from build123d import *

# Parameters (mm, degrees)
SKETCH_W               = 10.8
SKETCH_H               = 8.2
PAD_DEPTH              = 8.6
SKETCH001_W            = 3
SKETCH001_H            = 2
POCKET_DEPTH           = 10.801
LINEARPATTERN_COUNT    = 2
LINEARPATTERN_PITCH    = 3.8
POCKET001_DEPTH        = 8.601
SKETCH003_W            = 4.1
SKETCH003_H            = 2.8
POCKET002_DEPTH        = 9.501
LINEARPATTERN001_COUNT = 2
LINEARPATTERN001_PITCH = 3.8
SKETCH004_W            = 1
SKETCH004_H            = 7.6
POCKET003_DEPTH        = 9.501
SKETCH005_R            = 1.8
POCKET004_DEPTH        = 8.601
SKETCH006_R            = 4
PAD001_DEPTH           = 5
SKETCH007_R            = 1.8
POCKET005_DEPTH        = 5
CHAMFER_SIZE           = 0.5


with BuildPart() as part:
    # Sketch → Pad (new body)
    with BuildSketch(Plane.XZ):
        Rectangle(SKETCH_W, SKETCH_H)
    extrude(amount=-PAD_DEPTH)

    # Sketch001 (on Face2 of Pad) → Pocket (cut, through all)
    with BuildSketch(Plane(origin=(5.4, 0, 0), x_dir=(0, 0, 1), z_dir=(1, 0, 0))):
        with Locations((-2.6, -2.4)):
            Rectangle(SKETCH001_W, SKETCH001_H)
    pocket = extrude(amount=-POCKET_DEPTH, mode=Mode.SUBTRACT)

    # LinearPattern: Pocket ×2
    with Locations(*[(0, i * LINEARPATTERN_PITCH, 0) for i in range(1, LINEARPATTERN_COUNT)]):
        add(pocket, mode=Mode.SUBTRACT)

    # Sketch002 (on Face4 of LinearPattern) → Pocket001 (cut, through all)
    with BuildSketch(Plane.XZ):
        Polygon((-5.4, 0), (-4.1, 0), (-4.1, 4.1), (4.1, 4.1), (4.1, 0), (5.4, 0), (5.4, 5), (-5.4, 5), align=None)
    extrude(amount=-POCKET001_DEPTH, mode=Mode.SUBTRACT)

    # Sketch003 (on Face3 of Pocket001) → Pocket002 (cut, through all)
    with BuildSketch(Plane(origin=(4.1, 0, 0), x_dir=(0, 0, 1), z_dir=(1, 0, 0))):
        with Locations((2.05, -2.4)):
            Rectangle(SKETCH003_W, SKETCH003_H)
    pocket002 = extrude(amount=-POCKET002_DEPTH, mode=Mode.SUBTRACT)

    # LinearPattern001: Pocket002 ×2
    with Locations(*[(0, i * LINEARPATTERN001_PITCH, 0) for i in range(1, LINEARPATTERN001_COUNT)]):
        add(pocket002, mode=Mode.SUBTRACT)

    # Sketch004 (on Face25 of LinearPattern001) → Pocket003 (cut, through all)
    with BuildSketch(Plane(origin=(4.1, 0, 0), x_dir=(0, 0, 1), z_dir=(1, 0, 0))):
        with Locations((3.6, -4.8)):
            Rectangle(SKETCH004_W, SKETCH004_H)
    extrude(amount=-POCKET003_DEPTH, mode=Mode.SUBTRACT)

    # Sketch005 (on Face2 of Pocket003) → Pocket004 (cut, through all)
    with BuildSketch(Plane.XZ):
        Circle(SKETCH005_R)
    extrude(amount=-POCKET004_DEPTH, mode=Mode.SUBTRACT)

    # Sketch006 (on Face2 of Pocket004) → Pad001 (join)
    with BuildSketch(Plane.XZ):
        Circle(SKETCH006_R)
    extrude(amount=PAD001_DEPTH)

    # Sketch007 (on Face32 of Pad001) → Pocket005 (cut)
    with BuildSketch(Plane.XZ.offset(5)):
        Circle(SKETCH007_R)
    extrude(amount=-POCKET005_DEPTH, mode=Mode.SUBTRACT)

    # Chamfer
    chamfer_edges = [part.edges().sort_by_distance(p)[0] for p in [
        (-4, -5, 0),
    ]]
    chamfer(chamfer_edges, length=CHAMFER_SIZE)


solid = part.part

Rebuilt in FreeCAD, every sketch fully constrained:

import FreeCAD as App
import Part
import Sketcher

V = App.Vector
Q = App.Units.Quantity


def edges_at(feature, points):
    """Names of the edges that pass closest to the given points."""
    edges = feature.Shape.Edges
    near = lambda p: min(range(len(edges)), key=lambda i: edges[i].distToShape(Part.Vertex(*p))[0])
    return sorted({f"Edge{near(p) + 1}" for p in points})


def add_polygon(sketch, points):
    """Adds a closed chain of lines whose ends are joined by coincident constraints."""
    first, n = sketch.GeometryCount, len(points)
    for a, b in zip(points, points[1:] + points[:1]):
        sketch.addGeometry(Part.LineSegment(App.Vector(*a, 0), App.Vector(*b, 0)), False)
    for i in range(n):
        sketch.addConstraint(Sketcher.Constraint("Coincident", first + i, 2, first + (i + 1) % n, 1))

doc = App.newDocument("Part")
params = doc.addObject("Spreadsheet::Sheet", "Params")
for row, (alias, value) in enumerate([
    ("sketch1_width", "10.8 mm"),
    ("sketch1_height", "8.2 mm"),
    ("pad1_length", "8.6 mm"),
    ("sketch2_width", "2 mm"),
    ("sketch2_height", "3 mm"),
    ("linearpattern_pitch", "3.8 mm"),
    ("sketch3_height", "5 mm"),
    ("sketch3_width", "1.3 mm"),
    ("sketch3_width2", "8.2 mm"),
    ("sketch3_height2", "4.1 mm"),
    ("sketch4_width", "2.8 mm"),
    ("sketch4_height", "4.1 mm"),
    ("linearpattern2_pitch", "3.8 mm"),
    ("sketch5_height", "1 mm"),
    ("sketch5_width", "7.6 mm"),
    ("sketch6_diameter", "3.6 mm"),
    ("sketch7_diameter", "8 mm"),
    ("pad2_length", "5 mm"),
    ("sketch8_diameter", "3.6 mm"),
    ("pocket6_length", "5 mm"),
    ("chamfer_size", "0.5 mm"),
], start=1):
    params.set(f"A{row}", alias)
    params.set(f"B{row}", "=" + value)
    params.setAlias(f"B{row}", alias)

body = doc.addObject("PartDesign::Body", "Body")

# Sketch on XZ plane
sketch1 = body.newObject("Sketcher::SketchObject", "Sketch")
sketch1.AttachmentSupport = (doc.getObject("XZ_Plane"), [""])
sketch1.MapMode = "FlatFace"
add_polygon(sketch1, [(-5.4, 4.1), (-5.4, -4.1), (5.4, -4.1), (5.4, 4.1)])  # lines 0-3
sketch1.addConstraint([
    Sketcher.Constraint("Vertical", 0),
    Sketcher.Constraint("Horizontal", 1),
    Sketcher.Constraint("Vertical", 2),
    Sketcher.Constraint("Horizontal", 3),
    Sketcher.Constraint("Symmetric", 0, 2, 2, 2, -1, 1),
    Sketcher.Constraint("DistanceX", 1, 1, 1, 2, Q("10.8 mm")),
    Sketcher.Constraint("DistanceY", 0, 2, 0, 1, Q("8.2 mm")),
])
sketch1.setExpression("Constraints[9]", "Params.sketch1_width")
sketch1.setExpression("Constraints[10]", "Params.sketch1_height")
pad1 = body.newObject("PartDesign::Pad", "Pad")
pad1.Profile = sketch1
pad1.setExpression("Length", "Params.pad1_length")
pad1.Reversed = True

# Sketch on YZ plane
sketch2 = body.newObject("Sketcher::SketchObject", "Sketch001")
sketch2.AttachmentSupport = (doc.getObject("YZ_Plane"), [""])
sketch2.MapMode = "FlatFace"
sketch2.AttachmentOffset = App.Placement(V(0, 0, 5.4), App.Rotation())
add_polygon(sketch2, [(1.4, -4.1), (3.4, -4.1), (3.4, -1.1), (1.4, -1.1)])  # lines 0-3
sketch2.addConstraint([
    Sketcher.Constraint("Horizontal", 0),
    Sketcher.Constraint("Vertical", 1),
    Sketcher.Constraint("Horizontal", 2),
    Sketcher.Constraint("Vertical", 3),
    Sketcher.Constraint("DistanceX", 0, 1, 0, 2, Q("2 mm")),
    Sketcher.Constraint("DistanceY", 1, 1, 1, 2, Q("3 mm")),
    Sketcher.Constraint("DistanceX", -1, 1, 0, 2, Q("3.4 mm")),
    Sketcher.Constraint("DistanceY", 0, 2, -1, 1, Q("4.1 mm")),
])
sketch2.setExpression("Constraints[8]", "Params.sketch2_width")
sketch2.setExpression("Constraints[9]", "Params.sketch2_height")
pocket1 = body.newObject("PartDesign::Pocket", "Pocket")
pocket1.Profile = sketch2
pocket1.Type = "ThroughAll"
doc.recompute()

linearpattern = body.newObject("PartDesign::LinearPattern", "LinearPattern")
linearpattern.Originals = [pocket1]
linearpattern.Direction = (doc.getObject("Y_Axis"), [""])
linearpattern.Mode = "offset"
linearpattern.setExpression("Offset", "Params.linearpattern_pitch")
linearpattern.Occurrences = 2
body.Tip = linearpattern

# Sketch on XZ plane
sketch3 = body.newObject("Sketcher::SketchObject", "Sketch002")
sketch3.AttachmentSupport = (doc.getObject("XZ_Plane"), [""])
sketch3.MapMode = "FlatFace"
add_polygon(sketch3, [(-5.4, 0), (-4.1, 0), (-4.1, 4.1), (4.1, 4.1), (4.1, 0), (5.4, 0), (5.4, 5), (-5.4, 5)])  # lines 0-7
sketch3.addConstraint([
    Sketcher.Constraint("Horizontal", 0),
    Sketcher.Constraint("Vertical", 1),
    Sketcher.Constraint("Horizontal", 2),
    Sketcher.Constraint("Vertical", 3),
    Sketcher.Constraint("Horizontal", 4),
    Sketcher.Constraint("Vertical", 5),
    Sketcher.Constraint("Horizontal", 6),
    Sketcher.Constraint("Vertical", 7),
    Sketcher.Constraint("Symmetric", 0, 2, 3, 2, -1, 1),
    Sketcher.Constraint("Symmetric", 4, 2, 7, 2, -2),
    Sketcher.Constraint("DistanceY", 5, 1, 5, 2, Q("5 mm")),
    Sketcher.Constraint("DistanceX", 0, 1, 0, 2, Q("1.3 mm")),
    Sketcher.Constraint("DistanceX", 2, 1, 2, 2, Q("8.2 mm")),
    Sketcher.Constraint("DistanceY", 1, 1, 1, 2, Q("4.1 mm")),
])
sketch3.setExpression("Constraints[18]", "Params.sketch3_height")
sketch3.setExpression("Constraints[19]", "Params.sketch3_width")
sketch3.setExpression("Constraints[20]", "Params.sketch3_width2")
sketch3.setExpression("Constraints[21]", "Params.sketch3_height2")
pocket2 = body.newObject("PartDesign::Pocket", "Pocket001")
pocket2.Profile = sketch3
pocket2.Type = "ThroughAll"

# Sketch on YZ plane
sketch4 = body.newObject("Sketcher::SketchObject", "Sketch003")
sketch4.AttachmentSupport = (doc.getObject("YZ_Plane"), [""])
sketch4.MapMode = "FlatFace"
sketch4.AttachmentOffset = App.Placement(V(0, 0, 4.1), App.Rotation())
add_polygon(sketch4, [(1, 0), (3.8, 0), (3.8, 4.1), (1, 4.1)])  # lines 0-3
sketch4.addConstraint([
    Sketcher.Constraint("Horizontal", 0),
    Sketcher.Constraint("Vertical", 1),
    Sketcher.Constraint("Horizontal", 2),
    Sketcher.Constraint("Vertical", 3),
    Sketcher.Constraint("PointOnObject", 0, 2, -1),
    Sketcher.Constraint("DistanceX", 0, 1, 0, 2, Q("2.8 mm")),
    Sketcher.Constraint("DistanceY", 1, 1, 1, 2, Q("4.1 mm")),
    Sketcher.Constraint("DistanceX", -1, 1, 2, 2, Q("1 mm")),
])
sketch4.setExpression("Constraints[9]", "Params.sketch4_width")
sketch4.setExpression("Constraints[10]", "Params.sketch4_height")
pocket3 = body.newObject("PartDesign::Pocket", "Pocket002")
pocket3.Profile = sketch4
pocket3.Type = "ThroughAll"
doc.recompute()

linearpattern2 = body.newObject("PartDesign::LinearPattern", "LinearPattern001")
linearpattern2.Originals = [pocket3]
linearpattern2.Direction = (doc.getObject("Y_Axis"), [""])
linearpattern2.Mode = "offset"
linearpattern2.setExpression("Offset", "Params.linearpattern2_pitch")
linearpattern2.Occurrences = 2
body.Tip = linearpattern2

# Sketch on YZ plane
sketch5 = body.newObject("Sketcher::SketchObject", "Sketch004")
sketch5.AttachmentSupport = (doc.getObject("YZ_Plane"), [""])
sketch5.MapMode = "FlatFace"
sketch5.AttachmentOffset = App.Placement(V(0, 0, 4.1), App.Rotation())
add_polygon(sketch5, [(1, 3.1), (8.6, 3.1), (8.6, 4.1), (1, 4.1)])  # lines 0-3
sketch5.addConstraint([
    Sketcher.Constraint("Horizontal", 0),
    Sketcher.Constraint("Vertical", 1),
    Sketcher.Constraint("Horizontal", 2),
    Sketcher.Constraint("Vertical", 3),
    Sketcher.Constraint("DistanceY", 1, 1, 1, 2, Q("1 mm")),
    Sketcher.Constraint("DistanceX", 0, 1, 0, 2, Q("7.6 mm")),
    Sketcher.Constraint("DistanceX", -1, 1, 2, 2, Q("1 mm")),
    Sketcher.Constraint("DistanceY", -1, 1, 0, 2, Q("3.1 mm")),
])
sketch5.setExpression("Constraints[8]", "Params.sketch5_height")
sketch5.setExpression("Constraints[9]", "Params.sketch5_width")
pocket4 = body.newObject("PartDesign::Pocket", "Pocket003")
pocket4.Profile = sketch5
pocket4.Type = "ThroughAll"

# Sketch on XZ plane
sketch6 = body.newObject("Sketcher::SketchObject", "Sketch005")
sketch6.AttachmentSupport = (doc.getObject("XZ_Plane"), [""])
sketch6.MapMode = "FlatFace"
sketch6.addGeometry(Part.Circle(V(0, 0, 0), V(0, 0, 1), 1.8), False)
sketch6.addConstraint([
    Sketcher.Constraint("Coincident", 0, 3, -1, 1),
    Sketcher.Constraint("Diameter", 0, Q("3.6 mm")),
])
sketch6.setExpression("Constraints[1]", "Params.sketch6_diameter")
pocket5 = body.newObject("PartDesign::Pocket", "Pocket004")
pocket5.Profile = sketch6
pocket5.Type = "ThroughAll"

# Sketch on XZ plane
sketch7 = body.newObject("Sketcher::SketchObject", "Sketch006")
sketch7.AttachmentSupport = (doc.getObject("XZ_Plane"), [""])
sketch7.MapMode = "FlatFace"
sketch7.addGeometry(Part.Circle(V(0, 0, 0), V(0, 0, 1), 4), False)
sketch7.addConstraint([
    Sketcher.Constraint("Coincident", 0, 3, -1, 1),
    Sketcher.Constraint("Diameter", 0, Q("8 mm")),
])
sketch7.setExpression("Constraints[1]", "Params.sketch7_diameter")
pad2 = body.newObject("PartDesign::Pad", "Pad001")
pad2.Profile = sketch7
pad2.setExpression("Length", "Params.pad2_length")

# Sketch on XZ plane
sketch8 = body.newObject("Sketcher::SketchObject", "Sketch007")
sketch8.AttachmentSupport = (doc.getObject("XZ_Plane"), [""])
sketch8.MapMode = "FlatFace"
sketch8.AttachmentOffset = App.Placement(V(0, 0, 5), App.Rotation())
sketch8.addGeometry(Part.Circle(V(0, 0, 0), V(0, 0, 1), 1.8), False)
sketch8.addConstraint([
    Sketcher.Constraint("Coincident", 0, 3, -1, 1),
    Sketcher.Constraint("Diameter", 0, Q("3.6 mm")),
])
sketch8.setExpression("Constraints[1]", "Params.sketch8_diameter")
pocket6 = body.newObject("PartDesign::Pocket", "Pocket005")
pocket6.Profile = sketch8
pocket6.setExpression("Length", "Params.pocket6_length")
doc.recompute()

chamfer = body.newObject("PartDesign::Chamfer", "Chamfer")
chamfer.Base = (pocket6, edges_at(pocket6, [(-4, -5, 0)]))
chamfer.setExpression("Size", "Params.chamfer_size")

doc.recompute()
